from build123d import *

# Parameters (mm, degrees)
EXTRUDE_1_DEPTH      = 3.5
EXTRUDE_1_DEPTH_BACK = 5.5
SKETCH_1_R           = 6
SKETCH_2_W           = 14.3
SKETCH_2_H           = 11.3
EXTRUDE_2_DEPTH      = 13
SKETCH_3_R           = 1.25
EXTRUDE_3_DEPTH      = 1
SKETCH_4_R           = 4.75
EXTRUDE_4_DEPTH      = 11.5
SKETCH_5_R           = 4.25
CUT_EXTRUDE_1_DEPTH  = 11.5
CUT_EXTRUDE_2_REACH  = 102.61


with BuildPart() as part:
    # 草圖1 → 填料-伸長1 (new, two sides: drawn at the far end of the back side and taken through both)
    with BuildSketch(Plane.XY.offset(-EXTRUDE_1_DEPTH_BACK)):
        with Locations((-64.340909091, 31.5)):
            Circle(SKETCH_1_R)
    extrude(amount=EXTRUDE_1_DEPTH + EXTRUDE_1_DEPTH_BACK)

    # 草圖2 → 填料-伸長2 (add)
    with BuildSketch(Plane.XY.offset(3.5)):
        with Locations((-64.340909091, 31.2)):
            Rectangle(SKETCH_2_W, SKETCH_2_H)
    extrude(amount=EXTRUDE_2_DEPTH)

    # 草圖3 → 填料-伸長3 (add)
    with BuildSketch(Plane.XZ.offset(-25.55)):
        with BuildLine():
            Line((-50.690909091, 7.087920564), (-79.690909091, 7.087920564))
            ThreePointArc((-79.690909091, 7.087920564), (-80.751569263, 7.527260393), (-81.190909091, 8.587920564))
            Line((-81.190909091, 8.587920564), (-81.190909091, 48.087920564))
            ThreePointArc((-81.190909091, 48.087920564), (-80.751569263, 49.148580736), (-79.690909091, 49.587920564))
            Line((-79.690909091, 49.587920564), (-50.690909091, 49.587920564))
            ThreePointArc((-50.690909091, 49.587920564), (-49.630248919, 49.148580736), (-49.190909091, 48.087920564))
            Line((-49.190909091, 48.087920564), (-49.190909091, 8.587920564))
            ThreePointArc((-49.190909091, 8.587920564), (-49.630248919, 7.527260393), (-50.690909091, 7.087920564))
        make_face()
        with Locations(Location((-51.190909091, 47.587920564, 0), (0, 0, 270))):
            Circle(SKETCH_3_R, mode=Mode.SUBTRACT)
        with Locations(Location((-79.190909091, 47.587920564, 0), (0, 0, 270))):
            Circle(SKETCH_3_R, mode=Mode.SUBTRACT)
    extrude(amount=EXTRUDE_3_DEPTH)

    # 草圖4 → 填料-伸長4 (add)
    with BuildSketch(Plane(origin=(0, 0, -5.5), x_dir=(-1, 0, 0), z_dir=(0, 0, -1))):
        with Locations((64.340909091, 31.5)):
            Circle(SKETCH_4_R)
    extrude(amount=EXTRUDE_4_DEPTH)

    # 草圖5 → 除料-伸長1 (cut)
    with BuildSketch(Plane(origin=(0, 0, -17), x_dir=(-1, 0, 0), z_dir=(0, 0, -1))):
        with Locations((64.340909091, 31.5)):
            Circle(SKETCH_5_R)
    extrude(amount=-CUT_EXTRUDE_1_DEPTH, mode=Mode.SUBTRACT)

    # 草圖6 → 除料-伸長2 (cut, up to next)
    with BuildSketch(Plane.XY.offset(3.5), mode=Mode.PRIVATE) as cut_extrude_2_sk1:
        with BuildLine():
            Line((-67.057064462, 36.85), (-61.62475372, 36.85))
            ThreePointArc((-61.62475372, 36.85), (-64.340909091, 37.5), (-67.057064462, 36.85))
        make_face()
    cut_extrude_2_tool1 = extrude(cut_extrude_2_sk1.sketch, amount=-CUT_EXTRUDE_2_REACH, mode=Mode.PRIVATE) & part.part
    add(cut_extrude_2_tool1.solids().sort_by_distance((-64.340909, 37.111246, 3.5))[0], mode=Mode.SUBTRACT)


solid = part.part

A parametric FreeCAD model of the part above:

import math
import FreeCAD as App
import Part
import Sketcher
Q = App.Units.Quantity

doc = App.newDocument("Part")
body = doc.addObject("PartDesign::Body", "Body")

# Sketch on XY plane
sketch1 = body.newObject("Sketcher::SketchObject", "Sketch")
sketch1.AttachmentSupport = (doc.getObject("XY_Plane"), [""])
sketch1.MapMode = "FlatFace"
sketch1.addGeometry(Part.Circle(App.Vector(-64.340909, 31.5, 0), App.Vector(0, 0, 1), 6), False)
sketch1.addConstraint([
    Sketcher.Constraint("Diameter", 0, Q("12 mm")),
    Sketcher.Constraint("DistanceY", -1, 1, 0, 3, Q("31.5 mm")),
    Sketcher.Constraint("DistanceX", 0, 3, -1, 1, Q("64.340909 mm")),
])
pad1 = body.newObject("PartDesign::Pad", "Pad")
pad1.Profile = sketch1
pad1.Type = "TwoLengths"
pad1.Length = 3.5
pad1.Length2 = 5.5

# Sketch on XY plane
sketch2 = body.newObject("Sketcher::SketchObject", "Sketch001")
sketch2.AttachmentSupport = (doc.getObject("XY_Plane"), [""])
sketch2.MapMode = "FlatFace"
sketch2.AttachmentOffset = App.Placement(App.Vector(0, 0, 3.5), App.Rotation())
sketch2.addGeometry([
    Part.LineSegment(App.Vector(-71.490909, 36.85, 0), App.Vector(-71.490909, 25.55, 0)),
    Part.LineSegment(App.Vector(-71.490909, 25.55, 0), App.Vector(-57.190909, 25.55, 0)),
    Part.LineSegment(App.Vector(-57.190909, 25.55, 0), App.Vector(-57.190909, 36.85, 0)),
    Part.LineSegment(App.Vector(-57.190909, 36.85, 0), App.Vector(-71.490909, 36.85, 0)),
], False)
sketch2.addConstraint([
    Sketcher.Constraint("Coincident", 0, 2, 1, 1),
    Sketcher.Constraint("Coincident", 1, 2, 2, 1),
    Sketcher.Constraint("Coincident", 2, 2, 3, 1),
    Sketcher.Constraint("Coincident", 3, 2, 0, 1),
    Sketcher.Constraint("Vertical", 0),
    Sketcher.Constraint("Horizontal", 1),
    Sketcher.Constraint("Vertical", 2),
    Sketcher.Constraint("Horizontal", 3),
    Sketcher.Constraint("DistanceX", 1, 1, 1, 2, Q("14.3 mm")),
    Sketcher.Constraint("DistanceY", 0, 2, 0, 1, Q("11.3 mm")),
    Sketcher.Constraint("DistanceY", -1, 1, 0, 2, Q("25.55 mm")),
    Sketcher.Constraint("DistanceX", 0, 2, -1, 1, Q("71.490909 mm")),
])
pad2 = body.newObject("PartDesign::Pad", "Pad001")
pad2.Profile = sketch2
pad2.Length = 13

# Sketch on XZ plane
sketch3 = body.newObject("Sketcher::SketchObject", "Sketch002")
sketch3.AttachmentSupport = (doc.getObject("XZ_Plane"), [""])
sketch3.MapMode = "FlatFace"
sketch3.AttachmentOffset = App.Placement(App.Vector(0, 0, -25.55), App.Rotation())
sketch3.addGeometry([
    Part.LineSegment(App.Vector(-79.690909, 7.087921, 0), App.Vector(-50.690909, 7.087921, 0)),  # 0
    Part.ArcOfCircle(Part.Circle(App.Vector(-50.690909, 8.587921, 0), App.Vector(0, 0, 1), 1.5), math.radians(-90), math.radians(0)),  # 1
    Part.LineSegment(App.Vector(-49.190909, 8.587921, 0), App.Vector(-49.190909, 48.087921, 0)),  # 2
    Part.ArcOfCircle(Part.Circle(App.Vector(-50.690909, 48.087921, 0), App.Vector(0, 0, 1), 1.5), math.radians(0), math.radians(90)),  # 3
    Part.LineSegment(App.Vector(-50.690909, 49.587921, 0), App.Vector(-79.690909, 49.587921, 0)),  # 4
    Part.ArcOfCircle(Part.Circle(App.Vector(-79.690909, 48.087921, 0), App.Vector(0, 0, 1), 1.5), math.radians(90), math.radians(180)),  # 5
    Part.LineSegment(App.Vector(-81.190909, 48.087921, 0), App.Vector(-81.190909, 8.587921, 0)),  # 6
    Part.ArcOfCircle(Part.Circle(App.Vector(-79.690909, 8.587921, 0), App.Vector(0, 0, 1), 1.5), math.radians(-180), math.radians(-90)),  # 7
    Part.Circle(App.Vector(-51.190909, 47.587921, 0), App.Vector(0, 0, 1), 1.25),  # 8
    Part.Circle(App.Vector(-79.190909, 47.587921, 0), App.Vector(0, 0, 1), 1.25),  # 9
], False)
sketch3.addConstraint([
    Sketcher.Constraint("Tangent", 0, 2, 1, 1),
    Sketcher.Constraint("Tangent", 1, 2, 2, 1),
    Sketcher.Constraint("Tangent", 2, 2, 3, 1),
    Sketcher.Constraint("Tangent", 3, 2, 4, 1),
    Sketcher.Constraint("Tangent", 4, 2, 5, 1),
    Sketcher.Constraint("Tangent", 5, 2, 6, 1),
    Sketcher.Constraint("Tangent", 6, 2, 7, 1),
    Sketcher.Constraint("Tangent", 7, 2, 0, 1),
    Sketcher.Constraint("Horizontal", 0),
    Sketcher.Constraint("Vertical", 2),
    Sketcher.Constraint("Horizontal", 4),
    Sketcher.Constraint("Vertical", 6),
    Sketcher.Constraint("Equal", 1, 3),
    Sketcher.Constraint("Equal", 3, 5),
    Sketcher.Constraint("Equal", 5, 7),
    Sketcher.Constraint("Equal", 8, 9),
    Sketcher.Constraint("Horizontal", 8, 3, 9, 3),
    Sketcher.Constraint("Diameter", 8, Q("2.5 mm")),
    Sketcher.Constraint("Radius", 1, Q("1.5 mm")),
    Sketcher.Constraint("DistanceX", 0, 1, 0, 2, Q("29 mm")),
    Sketcher.Constraint("DistanceY", 2, 1, 2, 2, Q("39.5 mm")),
    Sketcher.Constraint("DistanceY", 1, 3, 8, 3, Q("39 mm")),
    Sketcher.Constraint("DistanceX", 9, 3, 8, 3, Q("28 mm")),
    Sketcher.Constraint("DistanceX", 8, 3, 1, 2, Q("2 mm")),
    Sketcher.Constraint("DistanceX", 1, 3, -1, 1, Q("50.690909 mm")),
    Sketcher.Constraint("DistanceY", -1, 1, 1, 3, Q("8.587921 mm")),
])
pad3 = body.newObject("PartDesign::Pad", "Pad002")
pad3.Profile = sketch3
pad3.Length = 1

# Sketch on XY plane
sketch4 = body.newObject("Sketcher::SketchObject", "Sketch003")
sketch4.AttachmentSupport = (doc.getObject("XY_Plane"), [""])
sketch4.MapMode = "FlatFace"
sketch4.AttachmentOffset = App.Placement(App.Vector(0, 0, -5.5), App.Rotation())
sketch4.addGeometry(Part.Circle(App.Vector(-64.340909, 31.5, 0), App.Vector(0, 0, 1), 4.75), False)
sketch4.addConstraint([
    Sketcher.Constraint("Diameter", 0, Q("9.5 mm")),
    Sketcher.Constraint("DistanceY", -1, 1, 0, 3, Q("31.5 mm")),
    Sketcher.Constraint("DistanceX", 0, 3, -1, 1, Q("64.340909 mm")),
])
pad4 = body.newObject("PartDesign::Pad", "Pad003")
pad4.Profile = sketch4
pad4.Length = 11.5
pad4.Reversed = True

# Sketch on XY plane
sketch5 = body.newObject("Sketcher::SketchObject", "Sketch004")
sketch5.AttachmentSupport = (doc.getObject("XY_Plane"), [""])
sketch5.MapMode = "FlatFace"
sketch5.AttachmentOffset = App.Placement(App.Vector(0, 0, -17), App.Rotation())
sketch5.addGeometry(Part.Circle(App.Vector(-64.340909, 31.5, 0), App.Vector(0, 0, 1), 4.25), False)
sketch5.addConstraint([
    Sketcher.Constraint("Diameter", 0, Q("8.5 mm")),
    Sketcher.Constraint("DistanceY", -1, 1, 0, 3, Q("31.5 mm")),
    Sketcher.Constraint("DistanceX", 0, 3, -1, 1, Q("64.340909 mm")),
])
pocket1 = body.newObject("PartDesign::Pocket", "Pocket")
pocket1.Profile = sketch5
pocket1.Length = 11.5
pocket1.Reversed = True

# Sketch on XY plane
sketch6 = body.newObject("Sketcher::SketchObject", "Sketch005")
sketch6.AttachmentSupport = (doc.getObject("XY_Plane"), [""])
sketch6.MapMode = "FlatFace"
sketch6.AttachmentOffset = App.Placement(App.Vector(0, 0, 3.5), App.Rotation())
sketch6.addGeometry([
    Part.LineSegment(App.Vector(-67.057064, 36.85, 0), App.Vector(-61.624754, 36.85, 0)),
    Part.ArcOfCircle(Part.Circle(App.Vector(-64.340909, 31.5, 0), App.Vector(0, 0, 1), 6), math.radians(63.083432), math.radians(116.916568)),
], False)
sketch6.addConstraint([
    Sketcher.Constraint("Coincident", 0, 1, 1, 2),
    Sketcher.Constraint("Coincident", 1, 1, 0, 2),
    Sketcher.Constraint("Horizontal", 0),
    Sketcher.Constraint("Radius", 1, Q("6 mm")),
    Sketcher.Constraint("DistanceY", -1, 1, 1, 3, Q("31.5 mm")),
    Sketcher.Constraint("DistanceY", -1, 1, 0, 1, Q("36.85 mm")),
    Sketcher.Constraint("DistanceX", 1, 3, -1, 1, Q("64.340909 mm")),
])
pocket2 = body.newObject("PartDesign::Pocket", "Pocket001")
pocket2.Profile = sketch6
pocket2.Type = "UpToFirst"

doc.recompute()
